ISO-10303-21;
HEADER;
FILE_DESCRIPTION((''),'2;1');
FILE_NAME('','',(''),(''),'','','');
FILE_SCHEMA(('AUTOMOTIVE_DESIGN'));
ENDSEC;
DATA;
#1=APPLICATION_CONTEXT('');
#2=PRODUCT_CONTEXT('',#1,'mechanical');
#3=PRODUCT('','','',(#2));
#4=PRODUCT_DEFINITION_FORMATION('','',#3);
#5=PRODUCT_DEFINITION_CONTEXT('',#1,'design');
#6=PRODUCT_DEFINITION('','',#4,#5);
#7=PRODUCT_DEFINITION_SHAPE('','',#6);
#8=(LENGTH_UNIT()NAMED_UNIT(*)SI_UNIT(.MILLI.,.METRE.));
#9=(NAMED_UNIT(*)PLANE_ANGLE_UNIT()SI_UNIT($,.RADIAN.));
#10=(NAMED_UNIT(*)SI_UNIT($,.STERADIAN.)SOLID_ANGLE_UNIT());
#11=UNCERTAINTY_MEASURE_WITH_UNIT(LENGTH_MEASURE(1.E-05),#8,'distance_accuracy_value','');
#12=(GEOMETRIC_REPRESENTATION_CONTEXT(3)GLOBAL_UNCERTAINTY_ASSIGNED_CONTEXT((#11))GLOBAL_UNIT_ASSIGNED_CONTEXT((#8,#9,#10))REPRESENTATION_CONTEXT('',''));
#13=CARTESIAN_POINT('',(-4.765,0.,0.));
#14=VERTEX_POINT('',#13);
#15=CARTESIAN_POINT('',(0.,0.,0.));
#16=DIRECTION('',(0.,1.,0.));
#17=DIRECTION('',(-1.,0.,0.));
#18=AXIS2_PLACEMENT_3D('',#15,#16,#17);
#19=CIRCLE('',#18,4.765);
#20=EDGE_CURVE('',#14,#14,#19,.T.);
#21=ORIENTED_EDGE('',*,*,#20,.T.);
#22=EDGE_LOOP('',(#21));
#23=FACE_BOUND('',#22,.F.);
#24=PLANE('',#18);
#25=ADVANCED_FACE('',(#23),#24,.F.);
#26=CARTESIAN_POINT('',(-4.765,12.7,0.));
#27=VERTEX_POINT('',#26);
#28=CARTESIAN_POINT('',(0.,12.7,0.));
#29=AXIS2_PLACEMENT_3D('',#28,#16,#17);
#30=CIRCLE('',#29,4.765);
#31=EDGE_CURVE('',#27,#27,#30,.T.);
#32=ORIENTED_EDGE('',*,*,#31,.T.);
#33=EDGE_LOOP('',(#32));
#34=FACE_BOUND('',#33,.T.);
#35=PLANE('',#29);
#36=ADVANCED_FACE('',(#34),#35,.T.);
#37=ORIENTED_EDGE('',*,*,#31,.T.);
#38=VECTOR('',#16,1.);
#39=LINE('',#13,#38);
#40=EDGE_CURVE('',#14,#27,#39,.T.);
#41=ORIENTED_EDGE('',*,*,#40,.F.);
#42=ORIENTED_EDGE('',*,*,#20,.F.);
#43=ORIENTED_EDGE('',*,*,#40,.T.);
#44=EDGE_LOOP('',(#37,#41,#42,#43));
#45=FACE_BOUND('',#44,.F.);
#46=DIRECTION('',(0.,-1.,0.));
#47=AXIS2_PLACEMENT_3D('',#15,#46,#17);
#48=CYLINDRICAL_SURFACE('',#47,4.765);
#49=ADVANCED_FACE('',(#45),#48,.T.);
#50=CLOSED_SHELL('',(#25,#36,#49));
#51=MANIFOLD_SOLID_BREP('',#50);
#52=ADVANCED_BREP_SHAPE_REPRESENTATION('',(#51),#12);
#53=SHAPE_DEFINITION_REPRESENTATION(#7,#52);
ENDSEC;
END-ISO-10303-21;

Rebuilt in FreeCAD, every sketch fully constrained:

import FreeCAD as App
import Part
import Sketcher

V = App.Vector
Q = App.Units.Quantity

doc = App.newDocument("Part")
params = doc.addObject("Spreadsheet::Sheet", "Params")
for row, (alias, value) in enumerate([
    ("pad1_length", "0.5 in"),
], start=1):
    params.set(f"A{row}", alias)
    params.set(f"B{row}", "=" + value)
    params.setAlias(f"B{row}", alias)

body = doc.addObject("PartDesign::Body", "Body")

sketch1 = doc.addObject("Sketcher::SketchObject", "Sketch")
body.addObject(sketch1)
sketch1.AttachmentSupport = (doc.XZ_Plane, [""])
sketch1.MapMode = "FlatFace"
sketch1.addGeometry(Part.Circle(V(0, 0, 0), V(0, 0, 1), 4.8), False)
sketch1.addConstraint([
    Sketcher.Constraint("Coincident", 0, 3, -1, 1),
    Sketcher.Constraint("Diameter", 0, Q("0.3752 in")),
])
pad1 = doc.addObject("PartDesign::Pad", "Pad")
body.addObject(pad1)
pad1.Profile = sketch1
pad1.setExpression("Length", "Params.pad1_length")
pad1.Reversed = True

doc.recompute()
